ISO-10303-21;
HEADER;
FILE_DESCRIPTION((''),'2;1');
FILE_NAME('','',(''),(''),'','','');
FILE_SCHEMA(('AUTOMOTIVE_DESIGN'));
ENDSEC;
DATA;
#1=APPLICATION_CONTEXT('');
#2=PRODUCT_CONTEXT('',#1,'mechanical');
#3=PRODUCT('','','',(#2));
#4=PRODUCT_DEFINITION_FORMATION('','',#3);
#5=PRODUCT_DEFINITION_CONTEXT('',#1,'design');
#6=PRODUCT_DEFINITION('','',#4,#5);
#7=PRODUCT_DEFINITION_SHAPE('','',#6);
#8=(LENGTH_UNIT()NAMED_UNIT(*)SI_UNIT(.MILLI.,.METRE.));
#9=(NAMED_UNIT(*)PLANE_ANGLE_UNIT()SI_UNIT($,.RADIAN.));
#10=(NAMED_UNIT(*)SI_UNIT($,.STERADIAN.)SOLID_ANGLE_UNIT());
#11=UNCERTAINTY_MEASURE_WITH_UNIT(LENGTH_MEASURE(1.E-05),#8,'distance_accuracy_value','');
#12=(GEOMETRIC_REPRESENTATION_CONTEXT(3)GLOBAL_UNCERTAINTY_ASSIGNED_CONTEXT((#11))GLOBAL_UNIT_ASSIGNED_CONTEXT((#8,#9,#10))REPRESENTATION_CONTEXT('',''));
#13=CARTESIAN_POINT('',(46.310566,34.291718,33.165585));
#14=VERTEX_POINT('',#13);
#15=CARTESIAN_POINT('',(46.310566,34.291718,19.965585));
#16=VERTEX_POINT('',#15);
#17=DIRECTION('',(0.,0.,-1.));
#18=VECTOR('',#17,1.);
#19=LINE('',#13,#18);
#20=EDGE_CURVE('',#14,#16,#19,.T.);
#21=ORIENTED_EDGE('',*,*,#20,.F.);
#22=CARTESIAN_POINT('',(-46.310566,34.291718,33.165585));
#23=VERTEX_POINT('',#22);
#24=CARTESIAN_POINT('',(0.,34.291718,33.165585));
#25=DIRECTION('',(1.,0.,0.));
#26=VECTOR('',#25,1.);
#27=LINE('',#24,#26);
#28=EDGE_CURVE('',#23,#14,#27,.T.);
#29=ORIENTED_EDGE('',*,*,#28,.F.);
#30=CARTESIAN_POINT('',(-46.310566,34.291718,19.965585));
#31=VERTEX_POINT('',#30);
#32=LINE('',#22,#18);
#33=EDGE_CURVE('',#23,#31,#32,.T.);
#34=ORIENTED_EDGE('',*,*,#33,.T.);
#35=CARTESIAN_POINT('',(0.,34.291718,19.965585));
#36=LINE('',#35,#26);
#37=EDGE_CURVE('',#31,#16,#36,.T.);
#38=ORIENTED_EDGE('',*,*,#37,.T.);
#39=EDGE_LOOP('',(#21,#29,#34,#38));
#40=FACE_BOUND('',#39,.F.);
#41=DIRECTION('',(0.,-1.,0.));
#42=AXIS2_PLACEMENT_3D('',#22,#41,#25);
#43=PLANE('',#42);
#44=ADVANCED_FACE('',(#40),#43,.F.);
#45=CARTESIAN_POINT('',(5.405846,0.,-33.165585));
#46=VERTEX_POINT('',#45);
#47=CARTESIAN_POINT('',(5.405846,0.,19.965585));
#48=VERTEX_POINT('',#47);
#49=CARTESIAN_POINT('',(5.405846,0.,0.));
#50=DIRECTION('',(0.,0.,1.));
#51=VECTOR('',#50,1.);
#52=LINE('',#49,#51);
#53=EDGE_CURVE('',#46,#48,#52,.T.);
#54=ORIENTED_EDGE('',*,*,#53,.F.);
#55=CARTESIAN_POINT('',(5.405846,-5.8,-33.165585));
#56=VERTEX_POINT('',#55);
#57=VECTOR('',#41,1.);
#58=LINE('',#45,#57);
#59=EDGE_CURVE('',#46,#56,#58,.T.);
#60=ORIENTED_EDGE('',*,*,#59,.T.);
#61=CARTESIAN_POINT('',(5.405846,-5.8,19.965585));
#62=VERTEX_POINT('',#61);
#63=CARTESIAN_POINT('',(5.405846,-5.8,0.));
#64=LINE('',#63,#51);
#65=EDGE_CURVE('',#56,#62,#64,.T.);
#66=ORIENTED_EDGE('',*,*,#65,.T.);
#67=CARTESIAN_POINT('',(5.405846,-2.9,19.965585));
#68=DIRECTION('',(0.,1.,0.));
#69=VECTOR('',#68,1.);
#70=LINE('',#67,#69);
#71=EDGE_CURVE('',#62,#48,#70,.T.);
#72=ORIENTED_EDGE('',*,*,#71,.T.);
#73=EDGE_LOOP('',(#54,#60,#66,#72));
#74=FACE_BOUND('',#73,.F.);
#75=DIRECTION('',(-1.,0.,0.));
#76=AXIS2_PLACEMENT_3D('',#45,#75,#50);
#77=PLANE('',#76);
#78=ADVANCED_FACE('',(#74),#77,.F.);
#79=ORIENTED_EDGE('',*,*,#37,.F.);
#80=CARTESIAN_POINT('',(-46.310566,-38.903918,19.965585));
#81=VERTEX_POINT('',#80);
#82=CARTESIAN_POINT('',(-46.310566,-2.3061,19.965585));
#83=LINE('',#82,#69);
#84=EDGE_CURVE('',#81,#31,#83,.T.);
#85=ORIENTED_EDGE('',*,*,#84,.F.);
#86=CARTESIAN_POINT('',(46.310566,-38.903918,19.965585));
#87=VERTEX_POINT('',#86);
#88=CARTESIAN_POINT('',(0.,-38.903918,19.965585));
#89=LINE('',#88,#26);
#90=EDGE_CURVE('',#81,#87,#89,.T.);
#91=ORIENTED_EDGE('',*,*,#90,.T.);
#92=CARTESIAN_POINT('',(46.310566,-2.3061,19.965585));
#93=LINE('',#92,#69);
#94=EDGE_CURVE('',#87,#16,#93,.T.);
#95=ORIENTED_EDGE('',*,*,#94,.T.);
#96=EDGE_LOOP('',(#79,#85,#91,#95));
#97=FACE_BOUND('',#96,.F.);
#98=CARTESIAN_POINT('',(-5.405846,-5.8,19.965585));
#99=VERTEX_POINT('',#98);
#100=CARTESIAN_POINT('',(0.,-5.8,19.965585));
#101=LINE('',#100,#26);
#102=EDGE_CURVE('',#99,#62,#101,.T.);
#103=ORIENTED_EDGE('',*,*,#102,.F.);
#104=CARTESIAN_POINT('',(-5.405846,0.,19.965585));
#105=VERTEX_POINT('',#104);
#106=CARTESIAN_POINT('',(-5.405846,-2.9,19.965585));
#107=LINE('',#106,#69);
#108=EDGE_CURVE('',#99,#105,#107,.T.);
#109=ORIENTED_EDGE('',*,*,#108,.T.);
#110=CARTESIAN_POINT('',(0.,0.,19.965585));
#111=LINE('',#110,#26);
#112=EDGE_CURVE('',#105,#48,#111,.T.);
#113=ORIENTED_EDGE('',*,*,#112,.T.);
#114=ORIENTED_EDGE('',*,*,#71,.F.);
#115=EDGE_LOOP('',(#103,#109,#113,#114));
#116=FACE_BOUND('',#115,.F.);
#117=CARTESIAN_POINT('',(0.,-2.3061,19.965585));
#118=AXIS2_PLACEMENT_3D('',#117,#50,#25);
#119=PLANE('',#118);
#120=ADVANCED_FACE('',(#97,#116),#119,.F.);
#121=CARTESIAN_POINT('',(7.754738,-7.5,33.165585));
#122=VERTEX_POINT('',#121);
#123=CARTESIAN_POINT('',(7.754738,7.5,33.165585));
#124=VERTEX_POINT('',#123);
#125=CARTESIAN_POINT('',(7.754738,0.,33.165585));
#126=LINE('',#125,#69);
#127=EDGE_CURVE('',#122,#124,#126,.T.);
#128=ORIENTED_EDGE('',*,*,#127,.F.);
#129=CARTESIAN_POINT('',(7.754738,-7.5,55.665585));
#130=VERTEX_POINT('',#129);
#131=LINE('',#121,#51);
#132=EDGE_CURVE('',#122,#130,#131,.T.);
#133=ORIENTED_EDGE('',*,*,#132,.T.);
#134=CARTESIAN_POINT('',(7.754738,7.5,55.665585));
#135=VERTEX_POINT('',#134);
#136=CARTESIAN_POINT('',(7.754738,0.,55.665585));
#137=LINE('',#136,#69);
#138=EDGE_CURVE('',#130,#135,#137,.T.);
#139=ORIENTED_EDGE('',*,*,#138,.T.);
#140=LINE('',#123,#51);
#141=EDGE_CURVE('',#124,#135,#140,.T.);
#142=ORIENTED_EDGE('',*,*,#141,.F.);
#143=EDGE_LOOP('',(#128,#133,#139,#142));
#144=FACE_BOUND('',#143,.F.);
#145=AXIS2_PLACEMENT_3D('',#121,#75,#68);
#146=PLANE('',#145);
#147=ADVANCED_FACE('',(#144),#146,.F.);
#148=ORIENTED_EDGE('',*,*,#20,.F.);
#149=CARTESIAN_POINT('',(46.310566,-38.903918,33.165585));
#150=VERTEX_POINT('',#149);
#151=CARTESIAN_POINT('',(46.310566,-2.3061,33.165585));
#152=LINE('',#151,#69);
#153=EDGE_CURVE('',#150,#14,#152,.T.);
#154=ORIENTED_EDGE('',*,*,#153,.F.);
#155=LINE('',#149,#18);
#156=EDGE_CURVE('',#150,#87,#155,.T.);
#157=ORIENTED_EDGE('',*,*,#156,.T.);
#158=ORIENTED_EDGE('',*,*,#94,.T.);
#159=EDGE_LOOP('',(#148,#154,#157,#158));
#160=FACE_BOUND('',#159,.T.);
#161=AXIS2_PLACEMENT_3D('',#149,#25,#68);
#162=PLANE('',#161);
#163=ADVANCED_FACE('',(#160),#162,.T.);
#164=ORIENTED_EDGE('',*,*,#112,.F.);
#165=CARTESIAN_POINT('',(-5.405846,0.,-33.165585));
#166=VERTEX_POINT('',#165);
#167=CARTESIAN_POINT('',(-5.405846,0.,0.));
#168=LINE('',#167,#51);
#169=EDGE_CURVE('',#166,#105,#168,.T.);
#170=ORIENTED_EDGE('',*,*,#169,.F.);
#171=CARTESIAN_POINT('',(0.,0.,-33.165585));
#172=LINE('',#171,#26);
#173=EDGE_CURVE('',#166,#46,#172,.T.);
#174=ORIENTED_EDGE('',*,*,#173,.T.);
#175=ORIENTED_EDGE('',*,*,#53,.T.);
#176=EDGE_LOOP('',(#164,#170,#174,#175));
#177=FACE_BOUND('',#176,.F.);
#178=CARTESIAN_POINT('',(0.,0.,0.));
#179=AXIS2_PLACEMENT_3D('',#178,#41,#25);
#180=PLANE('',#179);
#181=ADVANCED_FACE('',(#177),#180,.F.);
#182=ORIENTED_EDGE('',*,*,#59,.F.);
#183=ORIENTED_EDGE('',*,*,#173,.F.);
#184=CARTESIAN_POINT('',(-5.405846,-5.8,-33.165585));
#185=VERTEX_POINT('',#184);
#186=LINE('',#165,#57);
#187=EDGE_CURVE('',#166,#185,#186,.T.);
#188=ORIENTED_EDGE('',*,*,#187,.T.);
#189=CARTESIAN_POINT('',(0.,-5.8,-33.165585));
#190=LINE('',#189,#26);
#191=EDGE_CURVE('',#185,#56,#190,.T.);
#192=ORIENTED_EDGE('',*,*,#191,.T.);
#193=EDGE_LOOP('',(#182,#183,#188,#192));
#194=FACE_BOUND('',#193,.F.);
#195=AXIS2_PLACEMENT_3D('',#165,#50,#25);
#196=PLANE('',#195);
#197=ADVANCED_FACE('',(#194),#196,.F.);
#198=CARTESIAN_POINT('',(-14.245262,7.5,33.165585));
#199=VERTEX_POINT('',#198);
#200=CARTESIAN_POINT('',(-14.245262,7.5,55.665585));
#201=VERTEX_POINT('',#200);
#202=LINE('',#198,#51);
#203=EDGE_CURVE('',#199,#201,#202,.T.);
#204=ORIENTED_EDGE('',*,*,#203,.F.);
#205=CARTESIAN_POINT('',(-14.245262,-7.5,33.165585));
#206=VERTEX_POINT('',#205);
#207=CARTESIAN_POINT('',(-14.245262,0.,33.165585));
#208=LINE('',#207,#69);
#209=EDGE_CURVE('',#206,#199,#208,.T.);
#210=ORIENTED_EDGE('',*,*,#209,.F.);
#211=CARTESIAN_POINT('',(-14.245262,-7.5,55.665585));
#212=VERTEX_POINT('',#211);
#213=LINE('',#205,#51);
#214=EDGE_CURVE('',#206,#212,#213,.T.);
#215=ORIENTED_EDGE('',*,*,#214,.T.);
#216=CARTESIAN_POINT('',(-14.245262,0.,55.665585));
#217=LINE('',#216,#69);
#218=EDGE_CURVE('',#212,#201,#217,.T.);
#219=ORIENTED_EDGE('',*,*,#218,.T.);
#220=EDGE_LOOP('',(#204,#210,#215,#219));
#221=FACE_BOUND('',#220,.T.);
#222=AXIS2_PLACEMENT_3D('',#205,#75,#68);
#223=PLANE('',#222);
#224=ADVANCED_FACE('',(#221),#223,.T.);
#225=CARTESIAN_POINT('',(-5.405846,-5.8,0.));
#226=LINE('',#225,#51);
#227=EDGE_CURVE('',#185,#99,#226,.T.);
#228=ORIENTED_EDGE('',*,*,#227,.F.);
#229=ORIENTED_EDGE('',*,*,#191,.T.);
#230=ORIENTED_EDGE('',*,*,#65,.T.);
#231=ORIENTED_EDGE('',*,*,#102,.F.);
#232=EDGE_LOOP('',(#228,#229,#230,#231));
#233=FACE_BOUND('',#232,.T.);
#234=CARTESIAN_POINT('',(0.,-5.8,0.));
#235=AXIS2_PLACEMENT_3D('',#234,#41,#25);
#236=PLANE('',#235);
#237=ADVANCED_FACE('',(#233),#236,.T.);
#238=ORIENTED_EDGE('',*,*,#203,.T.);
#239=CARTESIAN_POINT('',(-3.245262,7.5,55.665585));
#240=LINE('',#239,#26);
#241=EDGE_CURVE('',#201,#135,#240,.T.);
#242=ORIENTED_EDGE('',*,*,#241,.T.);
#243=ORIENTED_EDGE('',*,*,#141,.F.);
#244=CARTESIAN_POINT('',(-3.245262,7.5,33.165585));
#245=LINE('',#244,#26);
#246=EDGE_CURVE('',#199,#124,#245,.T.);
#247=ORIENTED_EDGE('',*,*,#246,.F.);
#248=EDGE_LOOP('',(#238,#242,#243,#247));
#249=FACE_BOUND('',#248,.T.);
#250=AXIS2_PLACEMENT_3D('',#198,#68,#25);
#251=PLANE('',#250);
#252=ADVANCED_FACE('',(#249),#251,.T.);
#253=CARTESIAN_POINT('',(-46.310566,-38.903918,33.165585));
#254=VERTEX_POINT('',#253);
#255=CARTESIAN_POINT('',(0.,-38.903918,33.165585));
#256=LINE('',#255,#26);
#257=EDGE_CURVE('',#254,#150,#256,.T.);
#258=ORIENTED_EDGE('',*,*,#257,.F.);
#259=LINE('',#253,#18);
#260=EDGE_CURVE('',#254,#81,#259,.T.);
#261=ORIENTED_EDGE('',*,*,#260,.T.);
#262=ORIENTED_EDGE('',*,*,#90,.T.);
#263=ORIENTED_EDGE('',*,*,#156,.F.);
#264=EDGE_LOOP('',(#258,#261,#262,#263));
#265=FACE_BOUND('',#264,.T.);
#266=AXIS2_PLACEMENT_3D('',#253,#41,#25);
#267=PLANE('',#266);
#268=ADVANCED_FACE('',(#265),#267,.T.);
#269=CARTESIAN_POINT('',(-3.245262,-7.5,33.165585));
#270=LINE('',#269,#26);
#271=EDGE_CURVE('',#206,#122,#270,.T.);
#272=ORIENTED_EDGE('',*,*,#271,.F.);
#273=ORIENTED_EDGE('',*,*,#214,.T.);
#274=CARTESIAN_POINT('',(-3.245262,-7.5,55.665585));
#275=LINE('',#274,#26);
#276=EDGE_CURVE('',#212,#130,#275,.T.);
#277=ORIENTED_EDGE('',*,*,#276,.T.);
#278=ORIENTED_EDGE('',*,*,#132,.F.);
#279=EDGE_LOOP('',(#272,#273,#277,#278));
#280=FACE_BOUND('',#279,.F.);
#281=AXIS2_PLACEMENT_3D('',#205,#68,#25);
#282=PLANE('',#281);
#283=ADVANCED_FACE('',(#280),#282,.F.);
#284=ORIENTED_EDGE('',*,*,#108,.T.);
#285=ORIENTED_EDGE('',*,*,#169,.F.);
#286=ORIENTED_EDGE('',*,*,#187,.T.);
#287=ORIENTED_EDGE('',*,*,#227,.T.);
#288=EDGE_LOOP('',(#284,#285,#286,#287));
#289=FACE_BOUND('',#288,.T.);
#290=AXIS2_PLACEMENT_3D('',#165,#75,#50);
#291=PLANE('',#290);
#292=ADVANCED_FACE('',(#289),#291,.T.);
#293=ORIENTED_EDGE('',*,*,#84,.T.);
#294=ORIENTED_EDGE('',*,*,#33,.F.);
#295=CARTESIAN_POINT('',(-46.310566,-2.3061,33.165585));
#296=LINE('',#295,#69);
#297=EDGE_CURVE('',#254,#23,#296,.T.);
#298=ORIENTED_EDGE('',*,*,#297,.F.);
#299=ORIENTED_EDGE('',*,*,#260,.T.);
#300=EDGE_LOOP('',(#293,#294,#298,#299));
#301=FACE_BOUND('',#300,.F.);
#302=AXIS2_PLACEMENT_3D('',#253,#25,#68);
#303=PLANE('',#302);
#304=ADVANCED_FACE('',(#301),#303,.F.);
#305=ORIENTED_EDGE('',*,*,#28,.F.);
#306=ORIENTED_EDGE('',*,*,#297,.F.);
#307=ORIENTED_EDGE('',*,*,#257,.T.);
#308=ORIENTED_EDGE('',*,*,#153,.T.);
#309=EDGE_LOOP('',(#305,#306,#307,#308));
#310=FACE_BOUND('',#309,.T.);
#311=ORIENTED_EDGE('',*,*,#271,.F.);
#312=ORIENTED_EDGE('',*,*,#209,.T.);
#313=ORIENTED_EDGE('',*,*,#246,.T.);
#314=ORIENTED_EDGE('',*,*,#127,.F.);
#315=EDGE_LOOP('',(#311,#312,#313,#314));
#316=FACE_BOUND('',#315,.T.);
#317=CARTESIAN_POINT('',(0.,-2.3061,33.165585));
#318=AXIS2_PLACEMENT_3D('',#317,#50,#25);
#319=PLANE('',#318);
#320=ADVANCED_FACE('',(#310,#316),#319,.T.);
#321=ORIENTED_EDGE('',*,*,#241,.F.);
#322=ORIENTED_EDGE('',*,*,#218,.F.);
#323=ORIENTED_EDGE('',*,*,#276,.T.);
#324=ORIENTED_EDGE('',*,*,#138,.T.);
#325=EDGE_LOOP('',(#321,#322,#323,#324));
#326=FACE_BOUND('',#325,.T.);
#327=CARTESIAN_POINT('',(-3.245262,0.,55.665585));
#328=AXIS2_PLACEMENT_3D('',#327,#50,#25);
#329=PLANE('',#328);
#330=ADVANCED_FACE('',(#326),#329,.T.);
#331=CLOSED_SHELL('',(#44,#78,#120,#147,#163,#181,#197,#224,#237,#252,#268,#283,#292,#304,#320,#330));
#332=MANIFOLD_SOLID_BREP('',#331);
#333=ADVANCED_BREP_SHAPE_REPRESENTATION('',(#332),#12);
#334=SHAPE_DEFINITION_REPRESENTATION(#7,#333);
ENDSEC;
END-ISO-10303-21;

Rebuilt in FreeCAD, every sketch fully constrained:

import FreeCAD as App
import Part
import Sketcher

V = App.Vector

doc = App.newDocument("Part")
body = doc.addObject("PartDesign::Body", "Body")

sketch1 = body.newObject("Sketcher::SketchObject", "Sketch")
sketch1.AttachmentSupport = (doc.getObject("XZ_Plane"), [""])
sketch1.MapMode = "FlatFace"
sketch1.addGeometry(Part.LineSegment(V(-5, 33, 0), V(-5, -33, 0)), False)
sketch1.addGeometry(Part.LineSegment(V(-5, -33, 0), V(5, -33, 0)), False)
sketch1.addGeometry(Part.LineSegment(V(5, -33, 0), V(5, 33, 0)), False)
sketch1.addGeometry(Part.LineSegment(V(5, 33, 0), V(-5, 33, 0)), False)
sketch1.addConstraint(Sketcher.Constraint("Coincident", 0, 2, 1, 1))
sketch1.addConstraint(Sketcher.Constraint("Coincident", 1, 2, 2, 1))
sketch1.addConstraint(Sketcher.Constraint("Coincident", 2, 2, 3, 1))
sketch1.addConstraint(Sketcher.Constraint("Coincident", 3, 2, 0, 1))
sketch1.addConstraint(Sketcher.Constraint("Vertical", 0))
sketch1.addConstraint(Sketcher.Constraint("Horizontal", 1))
sketch1.addConstraint(Sketcher.Constraint("Vertical", 2))
sketch1.addConstraint(Sketcher.Constraint("Horizontal", 3))
sketch1.addConstraint(Sketcher.Constraint("Symmetric", 0, 2, 2, 2, -1, 1))
sketch1.addConstraint(Sketcher.Constraint("DistanceY", 0, 2, 0, 1, 66.33117))
sketch1.addConstraint(Sketcher.Constraint("DistanceX", 1, 1, 1, 2, 10.811692))
pad1 = body.newObject("PartDesign::Pad", "Pad")
pad1.Profile = sketch1
pad1.Length = 5.8

sketch2 = body.newObject("Sketcher::SketchObject", "Sketch001")
sketch2.AttachmentSupport = (doc.getObject("XY_Plane"), [""])
sketch2.MapMode = "FlatFace"
sketch2.AttachmentOffset = App.Placement(V(0, 0, 33.165585), App.Rotation())
sketch2.addGeometry(Part.LineSegment(V(-46, 34, 0), V(-46, -39, 0)), False)
sketch2.addGeometry(Part.LineSegment(V(-46, -39, 0), V(46, -39, 0)), False)
sketch2.addGeometry(Part.LineSegment(V(46, -39, 0), V(46, 34, 0)), False)
sketch2.addGeometry(Part.LineSegment(V(46, 34, 0), V(-46, 34, 0)), False)
sketch2.addGeometry(Part.LineSegment(V(5, -6, 0), V(-5, -6, 0)), False)
sketch2.addGeometry(Part.LineSegment(V(-5, -6, 0), V(-5, 0, 0)), False)
sketch2.addGeometry(Part.LineSegment(V(-5, 0, 0), V(5, 0, 0)), False)
sketch2.addGeometry(Part.LineSegment(V(5, 0, 0), V(5, -6, 0)), False)
sketch2.addConstraint(Sketcher.Constraint("Coincident", 0, 2, 1, 1))
sketch2.addConstraint(Sketcher.Constraint("Coincident", 1, 2, 2, 1))
sketch2.addConstraint(Sketcher.Constraint("Coincident", 2, 2, 3, 1))
sketch2.addConstraint(Sketcher.Constraint("Coincident", 3, 2, 0, 1))
sketch2.addConstraint(Sketcher.Constraint("Coincident", 4, 2, 5, 1))
sketch2.addConstraint(Sketcher.Constraint("Coincident", 5, 2, 6, 1))
sketch2.addConstraint(Sketcher.Constraint("Coincident", 6, 2, 7, 1))
sketch2.addConstraint(Sketcher.Constraint("Coincident", 7, 2, 4, 1))
sketch2.addConstraint(Sketcher.Constraint("Vertical", 0))
sketch2.addConstraint(Sketcher.Constraint("Horizontal", 1))
sketch2.addConstraint(Sketcher.Constraint("Vertical", 2))
sketch2.addConstraint(Sketcher.Constraint("Horizontal", 3))
sketch2.addConstraint(Sketcher.Constraint("Horizontal", 4))
sketch2.addConstraint(Sketcher.Constraint("Vertical", 5))
sketch2.addConstraint(Sketcher.Constraint("Horizontal", 6))
sketch2.addConstraint(Sketcher.Constraint("Vertical", 7))
sketch2.addConstraint(Sketcher.Constraint("Symmetric", 5, 2, 6, 2, -1, 1))
sketch2.addConstraint(Sketcher.Constraint("DistanceY", 5, 1, 5, 2, 5.8))
sketch2.addConstraint(Sketcher.Constraint("DistanceX", 1, 1, 1, 2, 92.621132))
sketch2.addConstraint(Sketcher.Constraint("DistanceX", 4, 2, 4, 1, 10.811692))
sketch2.addConstraint(Sketcher.Constraint("DistanceY", 0, 2, 0, 1, 73.195636))
sketch2.addConstraint(Sketcher.Constraint("DistanceY", -1, 1, 2, 2, 34.291718))
sketch2.addConstraint(Sketcher.Constraint("DistanceX", 0, 2, 4, 2, 40.90472))
pad2 = body.newObject("PartDesign::Pad", "Pad001")
pad2.Profile = sketch2
pad2.Length = 13.2
pad2.Reversed = True

sketch3 = body.newObject("Sketcher::SketchObject", "Sketch002")
sketch3.AttachmentSupport = (doc.getObject("XY_Plane"), [""])
sketch3.MapMode = "FlatFace"
sketch3.AttachmentOffset = App.Placement(V(0, 0, 33.165585), App.Rotation())
sketch3.addGeometry(Part.LineSegment(V(-14, 8, 0), V(-14, -8, 0)), False)
sketch3.addGeometry(Part.LineSegment(V(-14, -8, 0), V(8, -8, 0)), False)
sketch3.addGeometry(Part.LineSegment(V(8, -8, 0), V(8, 8, 0)), False)
sketch3.addGeometry(Part.LineSegment(V(8, 8, 0), V(-14, 8, 0)), False)
sketch3.addConstraint(Sketcher.Constraint("Coincident", 0, 2, 1, 1))
sketch3.addConstraint(Sketcher.Constraint("Coincident", 1, 2, 2, 1))
sketch3.addConstraint(Sketcher.Constraint("Coincident", 2, 2, 3, 1))
sketch3.addConstraint(Sketcher.Constraint("Coincident", 3, 2, 0, 1))
sketch3.addConstraint(Sketcher.Constraint("Vertical", 0))
sketch3.addConstraint(Sketcher.Constraint("Horizontal", 1))
sketch3.addConstraint(Sketcher.Constraint("Vertical", 2))
sketch3.addConstraint(Sketcher.Constraint("Horizontal", 3))
sketch3.addConstraint(Sketcher.Constraint("DistanceX", 1, 1, 1, 2, 22.0))
sketch3.addConstraint(Sketcher.Constraint("DistanceY", 0, 2, 0, 1, 15.0))
sketch3.addConstraint(Sketcher.Constraint("DistanceY", 0, 2, -1, 1, 7.5))
sketch3.addConstraint(Sketcher.Constraint("DistanceX", 0, 2, -1, 1, 14.245262))
pad3 = body.newObject("PartDesign::Pad", "Pad002")
pad3.Profile = sketch3
pad3.Length = 22.5

doc.recompute()
